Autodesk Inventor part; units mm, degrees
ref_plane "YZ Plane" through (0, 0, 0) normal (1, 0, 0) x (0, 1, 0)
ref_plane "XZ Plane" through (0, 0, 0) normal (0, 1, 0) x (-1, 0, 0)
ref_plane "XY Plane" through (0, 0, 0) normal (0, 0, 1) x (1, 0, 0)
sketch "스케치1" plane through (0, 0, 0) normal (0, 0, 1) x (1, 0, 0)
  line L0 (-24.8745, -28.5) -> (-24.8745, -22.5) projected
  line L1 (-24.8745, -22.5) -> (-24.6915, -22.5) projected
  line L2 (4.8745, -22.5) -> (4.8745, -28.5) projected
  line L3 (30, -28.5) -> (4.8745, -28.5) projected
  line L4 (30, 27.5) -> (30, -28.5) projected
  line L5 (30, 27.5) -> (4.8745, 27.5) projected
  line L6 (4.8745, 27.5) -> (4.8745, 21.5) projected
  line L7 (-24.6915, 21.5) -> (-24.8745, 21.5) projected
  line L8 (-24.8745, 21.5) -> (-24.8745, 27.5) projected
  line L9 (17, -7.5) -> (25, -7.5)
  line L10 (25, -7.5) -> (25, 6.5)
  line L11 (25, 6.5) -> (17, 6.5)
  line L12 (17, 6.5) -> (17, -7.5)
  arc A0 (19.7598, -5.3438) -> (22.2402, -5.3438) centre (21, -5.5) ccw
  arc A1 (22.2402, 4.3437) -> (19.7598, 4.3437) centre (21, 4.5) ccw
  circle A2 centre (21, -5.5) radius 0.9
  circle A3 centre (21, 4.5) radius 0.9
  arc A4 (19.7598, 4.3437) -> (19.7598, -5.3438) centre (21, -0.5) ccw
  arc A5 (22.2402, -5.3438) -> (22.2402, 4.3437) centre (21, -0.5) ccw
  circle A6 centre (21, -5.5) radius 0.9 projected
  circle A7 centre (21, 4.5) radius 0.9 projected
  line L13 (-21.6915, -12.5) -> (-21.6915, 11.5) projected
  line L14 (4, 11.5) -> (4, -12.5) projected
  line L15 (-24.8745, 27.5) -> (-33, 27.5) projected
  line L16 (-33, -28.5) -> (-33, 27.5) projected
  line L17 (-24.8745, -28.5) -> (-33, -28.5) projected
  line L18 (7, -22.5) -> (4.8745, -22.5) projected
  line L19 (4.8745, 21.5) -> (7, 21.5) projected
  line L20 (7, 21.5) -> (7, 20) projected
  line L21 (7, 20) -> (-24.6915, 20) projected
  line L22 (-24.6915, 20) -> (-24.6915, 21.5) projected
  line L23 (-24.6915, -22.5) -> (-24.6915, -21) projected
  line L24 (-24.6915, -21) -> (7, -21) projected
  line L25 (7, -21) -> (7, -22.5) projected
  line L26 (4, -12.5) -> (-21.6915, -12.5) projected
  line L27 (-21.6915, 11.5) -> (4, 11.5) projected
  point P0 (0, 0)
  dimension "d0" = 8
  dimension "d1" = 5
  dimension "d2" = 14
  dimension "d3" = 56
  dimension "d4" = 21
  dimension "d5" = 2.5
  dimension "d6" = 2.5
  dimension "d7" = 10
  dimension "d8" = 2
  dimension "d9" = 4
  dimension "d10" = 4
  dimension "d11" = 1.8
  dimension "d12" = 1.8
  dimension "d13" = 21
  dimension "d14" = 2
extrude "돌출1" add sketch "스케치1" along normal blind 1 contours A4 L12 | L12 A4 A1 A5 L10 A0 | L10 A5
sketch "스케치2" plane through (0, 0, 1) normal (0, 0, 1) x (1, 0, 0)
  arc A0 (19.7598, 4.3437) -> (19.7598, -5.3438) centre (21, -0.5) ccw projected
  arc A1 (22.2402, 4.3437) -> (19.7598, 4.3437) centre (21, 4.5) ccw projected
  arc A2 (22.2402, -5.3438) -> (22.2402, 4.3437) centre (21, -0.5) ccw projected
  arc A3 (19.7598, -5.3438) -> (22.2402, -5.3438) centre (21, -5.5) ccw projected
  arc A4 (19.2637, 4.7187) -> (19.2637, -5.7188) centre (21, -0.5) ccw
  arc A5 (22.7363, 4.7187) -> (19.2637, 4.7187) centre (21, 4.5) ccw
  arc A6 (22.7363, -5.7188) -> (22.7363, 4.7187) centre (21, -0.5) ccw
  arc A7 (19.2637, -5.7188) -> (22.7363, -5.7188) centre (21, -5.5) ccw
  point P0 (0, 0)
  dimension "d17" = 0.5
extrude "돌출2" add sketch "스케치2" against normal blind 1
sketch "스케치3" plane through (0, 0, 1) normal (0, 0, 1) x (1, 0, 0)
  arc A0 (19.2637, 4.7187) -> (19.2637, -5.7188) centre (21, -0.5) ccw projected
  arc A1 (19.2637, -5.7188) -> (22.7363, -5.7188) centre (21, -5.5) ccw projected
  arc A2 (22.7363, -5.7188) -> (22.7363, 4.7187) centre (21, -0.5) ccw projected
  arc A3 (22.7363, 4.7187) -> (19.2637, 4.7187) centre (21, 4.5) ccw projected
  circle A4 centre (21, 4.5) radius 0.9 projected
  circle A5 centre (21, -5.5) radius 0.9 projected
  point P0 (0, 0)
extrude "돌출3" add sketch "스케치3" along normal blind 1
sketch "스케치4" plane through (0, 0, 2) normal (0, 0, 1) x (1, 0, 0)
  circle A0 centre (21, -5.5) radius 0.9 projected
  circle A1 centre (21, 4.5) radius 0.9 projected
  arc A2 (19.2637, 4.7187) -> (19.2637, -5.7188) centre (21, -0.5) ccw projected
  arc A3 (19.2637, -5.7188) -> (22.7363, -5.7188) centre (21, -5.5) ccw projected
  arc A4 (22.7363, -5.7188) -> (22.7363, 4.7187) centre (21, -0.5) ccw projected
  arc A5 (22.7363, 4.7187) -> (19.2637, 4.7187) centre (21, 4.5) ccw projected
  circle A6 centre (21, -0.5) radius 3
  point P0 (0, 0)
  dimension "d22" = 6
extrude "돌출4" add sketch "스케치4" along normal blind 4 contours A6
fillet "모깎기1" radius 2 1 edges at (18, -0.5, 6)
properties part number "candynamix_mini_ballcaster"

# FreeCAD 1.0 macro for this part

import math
import FreeCAD as App
import Part
import Sketcher

V = App.Vector


def edges_at(feature, points):
    """Names of the edges that pass closest to the given points."""
    edges = feature.Shape.Edges
    near = lambda p: min(range(len(edges)), key=lambda i: edges[i].distToShape(Part.Vertex(*p))[0])
    return sorted({f"Edge{near(p) + 1}" for p in points})

doc = App.newDocument("Part")
params = doc.addObject("Spreadsheet::Sheet", "Params")
for row, (alias, value) in enumerate([
    ("sketch1_radius", "5 mm"),
    ("sketch1_diameter", "1.8 mm"),
    ("sketch1_radius2", "1.25 mm"),
    ("pad1_length", "1 mm"),
    ("sketch2_radius", "5 mm"),
    ("sketch2_radius2", "5.5 mm"),
    ("sketch2_radius3", "1.75 mm"),
    ("sketch2_radius4", "1.25 mm"),
    ("pad2_length", "1 mm"),
    ("sketch3_diameter", "1.8 mm"),
    ("sketch3_radius", "5.5 mm"),
    ("sketch3_radius2", "1.75 mm"),
    ("pad3_length", "1 mm"),
    ("sketch4_diameter", "6 mm"),
    ("pad4_length", "4 mm"),
    ("fillet_radius", "2 mm"),
], start=1):
    params.set(f"A{row}", alias)
    params.set(f"B{row}", "=" + value)
    params.setAlias(f"B{row}", alias)

body = doc.addObject("PartDesign::Body", "Body")

# Sketch on XY plane
sketch1 = doc.addObject("Sketcher::SketchObject", "Sketch")
body.addObject(sketch1)
sketch1.AttachmentSupport = (doc.XY_Plane, [""])
sketch1.MapMode = "FlatFace"
sketch1.addGeometry(Part.ArcOfCircle(Part.Circle(V(21, -5.5, 0), V(0, 0, 1), 1.249998), math.radians(172.821541), math.radians(367.178459)), False)
sketch1.addGeometry(Part.ArcOfCircle(Part.Circle(V(21, -0.5, 0), V(0, 0, 1), 4.999953), math.radians(-75.638585), math.radians(75.638301)), False)
sketch1.addGeometry(Part.ArcOfCircle(Part.Circle(V(21, 4.5, 0), V(0, 0, 1), 1.25001), math.radians(-7.183006), math.radians(187.183006)), False)
sketch1.addGeometry(Part.ArcOfCircle(Part.Circle(V(21, -0.5, 0), V(0, 0, 1), 5.000049), math.radians(104.361699), math.radians(255.638585)), False)
sketch1.addGeometry(Part.Circle(V(21, 4.5, 0), V(0, 0, 1), 0.9), False)
sketch1.addGeometry(Part.Circle(V(21, -5.5, 0), V(0, 0, 1), 0.9), False)
sketch1.addConstraint(Sketcher.Constraint("Coincident", 0, 2, 1, 1))
sketch1.addConstraint(Sketcher.Constraint("Coincident", 1, 2, 2, 1))
sketch1.addConstraint(Sketcher.Constraint("Coincident", 2, 2, 3, 1))
sketch1.addConstraint(Sketcher.Constraint("Coincident", 3, 2, 0, 1))
sketch1.addConstraint(Sketcher.Constraint("Coincident", 3, 3, 1, 3))
sketch1.addConstraint(Sketcher.Constraint("Coincident", 4, 3, 2, 3))
sketch1.addConstraint(Sketcher.Constraint("Coincident", 5, 3, 0, 3))
sketch1.addConstraint(Sketcher.Constraint("Equal", 0, 2))
sketch1.addConstraint(Sketcher.Constraint("Equal", 1, 3))
sketch1.addConstraint(Sketcher.Constraint("Equal", 4, 5))
sketch1.addConstraint(Sketcher.Constraint("Horizontal", 1, 2, 2, 2))
sketch1.addConstraint(Sketcher.Constraint("Horizontal", 0, 2, 3, 2))
sketch1.addConstraint(Sketcher.Constraint("Vertical", 0, 2, 1, 2))
sketch1.addConstraint(Sketcher.Constraint("Radius", 1, 5.0))
sketch1.addConstraint(Sketcher.Constraint("Diameter", 4, 1.8))
sketch1.addConstraint(Sketcher.Constraint("Radius", 0, 1.25))
sketch1.addConstraint(Sketcher.Constraint("DistanceX", -1, 1, 0, 3, 21.0))
sketch1.addConstraint(Sketcher.Constraint("DistanceY", 0, 3, 1, 3, 5.0))
sketch1.addConstraint(Sketcher.Constraint("DistanceY", 0, 3, -1, 1, 5.5))
sketch1.setExpression("Constraints[13]", "Params.sketch1_radius")
sketch1.setExpression("Constraints[14]", "Params.sketch1_diameter")
sketch1.setExpression("Constraints[15]", "Params.sketch1_radius2")
pad1 = doc.addObject("PartDesign::Pad", "Pad")
body.addObject(pad1)
pad1.Profile = sketch1
pad1.setExpression("Length", "Params.pad1_length")

# Sketch on XY plane
sketch2 = doc.addObject("Sketcher::SketchObject", "Sketch001")
body.addObject(sketch2)
sketch2.AttachmentSupport = (doc.XY_Plane, [""])
sketch2.MapMode = "FlatFace"
sketch2.AttachmentOffset = App.Placement(V(0, 0, 1), App.Rotation())
sketch2.addGeometry(Part.ArcOfCircle(Part.Circle(V(21, 4.5, 0), V(0, 0, 1), 1.750019), math.radians(7.179026), math.radians(172.820974)), False)
sketch2.addGeometry(Part.ArcOfCircle(Part.Circle(V(21, -0.5, 0), V(0, 0, 1), 5.500056), math.radians(108.402665), math.radians(251.597664)), False)
sketch2.addGeometry(Part.ArcOfCircle(Part.Circle(V(21, -5.5, 0), V(0, 0, 1), 1.750032), math.radians(-172.817725), math.radians(-7.182275)), False)
sketch2.addGeometry(Part.ArcOfCircle(Part.Circle(V(21, -0.5, 0), V(0, 0, 1), 5.499961), math.radians(-71.597664), math.radians(71.597335)), False)
sketch2.addGeometry(Part.ArcOfCircle(Part.Circle(V(21, -0.5, 0), V(0, 0, 1), 5.000049), math.radians(104.361699), math.radians(255.638585)), False)
sketch2.addGeometry(Part.ArcOfCircle(Part.Circle(V(21, 4.5, 0), V(0, 0, 1), 1.25001), math.radians(-7.183006), math.radians(187.183006)), False)
sketch2.addGeometry(Part.ArcOfCircle(Part.Circle(V(21, -0.5, 0), V(0, 0, 1), 4.999953), math.radians(-75.638585), math.radians(75.638301)), False)
sketch2.addGeometry(Part.ArcOfCircle(Part.Circle(V(21, -5.5, 0), V(0, 0, 1), 1.249998), math.radians(172.821541), math.radians(367.178459)), False)
sketch2.addConstraint(Sketcher.Constraint("Coincident", 0, 2, 1, 1))
sketch2.addConstraint(Sketcher.Constraint("Coincident", 1, 2, 2, 1))
sketch2.addConstraint(Sketcher.Constraint("Coincident", 2, 2, 3, 1))
sketch2.addConstraint(Sketcher.Constraint("Coincident", 3, 2, 0, 1))
sketch2.addConstraint(Sketcher.Constraint("Coincident", 4, 1, 5, 2))
sketch2.addConstraint(Sketcher.Constraint("Coincident", 5, 1, 6, 2))
sketch2.addConstraint(Sketcher.Constraint("Coincident", 6, 1, 7, 2))
sketch2.addConstraint(Sketcher.Constraint("Coincident", 7, 1, 4, 2))
sketch2.addConstraint(Sketcher.Constraint("Coincident", 3, 3, 1, 3))
sketch2.addConstraint(Sketcher.Constraint("Coincident", 4, 3, 1, 3))
sketch2.addConstraint(Sketcher.Constraint("Coincident", 5, 3, 0, 3))
sketch2.addConstraint(Sketcher.Constraint("Coincident", 6, 3, 1, 3))
sketch2.addConstraint(Sketcher.Constraint("Coincident", 7, 3, 2, 3))
sketch2.addConstraint(Sketcher.Constraint("Equal", 0, 2))
sketch2.addConstraint(Sketcher.Constraint("Equal", 1, 3))
sketch2.addConstraint(Sketcher.Constraint("Equal", 4, 6))
sketch2.addConstraint(Sketcher.Constraint("Equal", 5, 7))
sketch2.addConstraint(Sketcher.Constraint("Horizontal", 1, 2, 2, 2))
sketch2.addConstraint(Sketcher.Constraint("Horizontal", 0, 2, 3, 2))
sketch2.addConstraint(Sketcher.Constraint("Vertical", 0, 2, 1, 2))
sketch2.addConstraint(Sketcher.Constraint("Radius", 4, 5.0))
sketch2.addConstraint(Sketcher.Constraint("DistanceY", 1, 3, -1, 1, 0.5))
sketch2.addConstraint(Sketcher.Constraint("Radius", 1, 5.5))
sketch2.addConstraint(Sketcher.Constraint("Radius", 0, 1.75))
sketch2.addConstraint(Sketcher.Constraint("Radius", 5, 1.25))
sketch2.addConstraint(Sketcher.Constraint("DistanceX", -1, 1, 0, 3, 21.0))
sketch2.addConstraint(Sketcher.Constraint("DistanceY", 1, 3, 0, 3, 5.0))
sketch2.setExpression("Constraints[20]", "Params.sketch2_radius")
sketch2.setExpression("Constraints[22]", "Params.sketch2_radius2")
sketch2.setExpression("Constraints[23]", "Params.sketch2_radius3")
sketch2.setExpression("Constraints[24]", "Params.sketch2_radius4")
pad2 = doc.addObject("PartDesign::Pad", "Pad001")
body.addObject(pad2)
pad2.Profile = sketch2
pad2.setExpression("Length", "Params.pad2_length")
pad2.Reversed = True

# Sketch on XY plane
sketch3 = doc.addObject("Sketcher::SketchObject", "Sketch002")
body.addObject(sketch3)
sketch3.AttachmentSupport = (doc.XY_Plane, [""])
sketch3.MapMode = "FlatFace"
sketch3.AttachmentOffset = App.Placement(V(0, 0, 1), App.Rotation())
sketch3.addGeometry(Part.ArcOfCircle(Part.Circle(V(21, 4.5, 0), V(0, 0, 1), 1.750019), math.radians(7.179026), math.radians(172.820974)), False)
sketch3.addGeometry(Part.ArcOfCircle(Part.Circle(V(21, -0.5, 0), V(0, 0, 1), 5.500056), math.radians(108.402665), math.radians(251.597664)), False)
sketch3.addGeometry(Part.ArcOfCircle(Part.Circle(V(21, -5.5, 0), V(0, 0, 1), 1.750032), math.radians(-172.817725), math.radians(-7.182275)), False)
sketch3.addGeometry(Part.ArcOfCircle(Part.Circle(V(21, -0.5, 0), V(0, 0, 1), 5.499961), math.radians(-71.597664), math.radians(71.597335)), False)
sketch3.addGeometry(Part.Circle(V(21, -5.5, 0), V(0, 0, 1), 0.9), False)
sketch3.addGeometry(Part.Circle(V(21, 4.5, 0), V(0, 0, 1), 0.9), False)
sketch3.addConstraint(Sketcher.Constraint("Coincident", 0, 2, 1, 1))
sketch3.addConstraint(Sketcher.Constraint("Coincident", 1, 2, 2, 1))
sketch3.addConstraint(Sketcher.Constraint("Coincident", 2, 2, 3, 1))
sketch3.addConstraint(Sketcher.Constraint("Coincident", 3, 2, 0, 1))
sketch3.addConstraint(Sketcher.Constraint("Coincident", 3, 3, 1, 3))
sketch3.addConstraint(Sketcher.Constraint("Coincident", 4, 3, 2, 3))
sketch3.addConstraint(Sketcher.Constraint("Coincident", 5, 3, 0, 3))
sketch3.addConstraint(Sketcher.Constraint("Equal", 0, 2))
sketch3.addConstraint(Sketcher.Constraint("Equal", 1, 3))
sketch3.addConstraint(Sketcher.Constraint("Equal", 4, 5))
sketch3.addConstraint(Sketcher.Constraint("Horizontal", 1, 2, 2, 2))
sketch3.addConstraint(Sketcher.Constraint("Horizontal", 0, 2, 3, 2))
sketch3.addConstraint(Sketcher.Constraint("Vertical", 0, 2, 1, 2))
sketch3.addConstraint(Sketcher.Constraint("Diameter", 4, 1.8))
sketch3.addConstraint(Sketcher.Constraint("Radius", 1, 5.5))
sketch3.addConstraint(Sketcher.Constraint("Radius", 0, 1.75))
sketch3.addConstraint(Sketcher.Constraint("DistanceX", -1, 1, 0, 3, 21.0))
sketch3.addConstraint(Sketcher.Constraint("DistanceY", 1, 3, 0, 3, 5.0))
sketch3.addConstraint(Sketcher.Constraint("DistanceY", -1, 1, 0, 3, 4.5))
sketch3.setExpression("Constraints[13]", "Params.sketch3_diameter")
sketch3.setExpression("Constraints[14]", "Params.sketch3_radius")
sketch3.setExpression("Constraints[15]", "Params.sketch3_radius2")
pad3 = doc.addObject("PartDesign::Pad", "Pad002")
body.addObject(pad3)
pad3.Profile = sketch3
pad3.setExpression("Length", "Params.pad3_length")

# Sketch on XY plane
sketch4 = doc.addObject("Sketcher::SketchObject", "Sketch003")
body.addObject(sketch4)
sketch4.AttachmentSupport = (doc.XY_Plane, [""])
sketch4.MapMode = "FlatFace"
sketch4.AttachmentOffset = App.Placement(V(0, 0, 2), App.Rotation())
sketch4.addGeometry(Part.Circle(V(21, -0.5, 0), V(0, 0, 1), 3), False)
sketch4.addConstraint(Sketcher.Constraint("Diameter", 0, 6.0))
sketch4.addConstraint(Sketcher.Constraint("DistanceX", -1, 1, 0, 3, 21.0))
sketch4.addConstraint(Sketcher.Constraint("DistanceY", 0, 3, -1, 1, 0.5))
sketch4.setExpression("Constraints[0]", "Params.sketch4_diameter")
pad4 = doc.addObject("PartDesign::Pad", "Pad003")
body.addObject(pad4)
pad4.Profile = sketch4
pad4.setExpression("Length", "Params.pad4_length")
doc.recompute()

fillet = doc.addObject("PartDesign::Fillet", "Fillet")
body.addObject(fillet)
fillet.Base = (pad4, edges_at(pad4, [(18, -0.5, 6)]))
fillet.setExpression("Radius", "Params.fillet_radius")

doc.recompute()
